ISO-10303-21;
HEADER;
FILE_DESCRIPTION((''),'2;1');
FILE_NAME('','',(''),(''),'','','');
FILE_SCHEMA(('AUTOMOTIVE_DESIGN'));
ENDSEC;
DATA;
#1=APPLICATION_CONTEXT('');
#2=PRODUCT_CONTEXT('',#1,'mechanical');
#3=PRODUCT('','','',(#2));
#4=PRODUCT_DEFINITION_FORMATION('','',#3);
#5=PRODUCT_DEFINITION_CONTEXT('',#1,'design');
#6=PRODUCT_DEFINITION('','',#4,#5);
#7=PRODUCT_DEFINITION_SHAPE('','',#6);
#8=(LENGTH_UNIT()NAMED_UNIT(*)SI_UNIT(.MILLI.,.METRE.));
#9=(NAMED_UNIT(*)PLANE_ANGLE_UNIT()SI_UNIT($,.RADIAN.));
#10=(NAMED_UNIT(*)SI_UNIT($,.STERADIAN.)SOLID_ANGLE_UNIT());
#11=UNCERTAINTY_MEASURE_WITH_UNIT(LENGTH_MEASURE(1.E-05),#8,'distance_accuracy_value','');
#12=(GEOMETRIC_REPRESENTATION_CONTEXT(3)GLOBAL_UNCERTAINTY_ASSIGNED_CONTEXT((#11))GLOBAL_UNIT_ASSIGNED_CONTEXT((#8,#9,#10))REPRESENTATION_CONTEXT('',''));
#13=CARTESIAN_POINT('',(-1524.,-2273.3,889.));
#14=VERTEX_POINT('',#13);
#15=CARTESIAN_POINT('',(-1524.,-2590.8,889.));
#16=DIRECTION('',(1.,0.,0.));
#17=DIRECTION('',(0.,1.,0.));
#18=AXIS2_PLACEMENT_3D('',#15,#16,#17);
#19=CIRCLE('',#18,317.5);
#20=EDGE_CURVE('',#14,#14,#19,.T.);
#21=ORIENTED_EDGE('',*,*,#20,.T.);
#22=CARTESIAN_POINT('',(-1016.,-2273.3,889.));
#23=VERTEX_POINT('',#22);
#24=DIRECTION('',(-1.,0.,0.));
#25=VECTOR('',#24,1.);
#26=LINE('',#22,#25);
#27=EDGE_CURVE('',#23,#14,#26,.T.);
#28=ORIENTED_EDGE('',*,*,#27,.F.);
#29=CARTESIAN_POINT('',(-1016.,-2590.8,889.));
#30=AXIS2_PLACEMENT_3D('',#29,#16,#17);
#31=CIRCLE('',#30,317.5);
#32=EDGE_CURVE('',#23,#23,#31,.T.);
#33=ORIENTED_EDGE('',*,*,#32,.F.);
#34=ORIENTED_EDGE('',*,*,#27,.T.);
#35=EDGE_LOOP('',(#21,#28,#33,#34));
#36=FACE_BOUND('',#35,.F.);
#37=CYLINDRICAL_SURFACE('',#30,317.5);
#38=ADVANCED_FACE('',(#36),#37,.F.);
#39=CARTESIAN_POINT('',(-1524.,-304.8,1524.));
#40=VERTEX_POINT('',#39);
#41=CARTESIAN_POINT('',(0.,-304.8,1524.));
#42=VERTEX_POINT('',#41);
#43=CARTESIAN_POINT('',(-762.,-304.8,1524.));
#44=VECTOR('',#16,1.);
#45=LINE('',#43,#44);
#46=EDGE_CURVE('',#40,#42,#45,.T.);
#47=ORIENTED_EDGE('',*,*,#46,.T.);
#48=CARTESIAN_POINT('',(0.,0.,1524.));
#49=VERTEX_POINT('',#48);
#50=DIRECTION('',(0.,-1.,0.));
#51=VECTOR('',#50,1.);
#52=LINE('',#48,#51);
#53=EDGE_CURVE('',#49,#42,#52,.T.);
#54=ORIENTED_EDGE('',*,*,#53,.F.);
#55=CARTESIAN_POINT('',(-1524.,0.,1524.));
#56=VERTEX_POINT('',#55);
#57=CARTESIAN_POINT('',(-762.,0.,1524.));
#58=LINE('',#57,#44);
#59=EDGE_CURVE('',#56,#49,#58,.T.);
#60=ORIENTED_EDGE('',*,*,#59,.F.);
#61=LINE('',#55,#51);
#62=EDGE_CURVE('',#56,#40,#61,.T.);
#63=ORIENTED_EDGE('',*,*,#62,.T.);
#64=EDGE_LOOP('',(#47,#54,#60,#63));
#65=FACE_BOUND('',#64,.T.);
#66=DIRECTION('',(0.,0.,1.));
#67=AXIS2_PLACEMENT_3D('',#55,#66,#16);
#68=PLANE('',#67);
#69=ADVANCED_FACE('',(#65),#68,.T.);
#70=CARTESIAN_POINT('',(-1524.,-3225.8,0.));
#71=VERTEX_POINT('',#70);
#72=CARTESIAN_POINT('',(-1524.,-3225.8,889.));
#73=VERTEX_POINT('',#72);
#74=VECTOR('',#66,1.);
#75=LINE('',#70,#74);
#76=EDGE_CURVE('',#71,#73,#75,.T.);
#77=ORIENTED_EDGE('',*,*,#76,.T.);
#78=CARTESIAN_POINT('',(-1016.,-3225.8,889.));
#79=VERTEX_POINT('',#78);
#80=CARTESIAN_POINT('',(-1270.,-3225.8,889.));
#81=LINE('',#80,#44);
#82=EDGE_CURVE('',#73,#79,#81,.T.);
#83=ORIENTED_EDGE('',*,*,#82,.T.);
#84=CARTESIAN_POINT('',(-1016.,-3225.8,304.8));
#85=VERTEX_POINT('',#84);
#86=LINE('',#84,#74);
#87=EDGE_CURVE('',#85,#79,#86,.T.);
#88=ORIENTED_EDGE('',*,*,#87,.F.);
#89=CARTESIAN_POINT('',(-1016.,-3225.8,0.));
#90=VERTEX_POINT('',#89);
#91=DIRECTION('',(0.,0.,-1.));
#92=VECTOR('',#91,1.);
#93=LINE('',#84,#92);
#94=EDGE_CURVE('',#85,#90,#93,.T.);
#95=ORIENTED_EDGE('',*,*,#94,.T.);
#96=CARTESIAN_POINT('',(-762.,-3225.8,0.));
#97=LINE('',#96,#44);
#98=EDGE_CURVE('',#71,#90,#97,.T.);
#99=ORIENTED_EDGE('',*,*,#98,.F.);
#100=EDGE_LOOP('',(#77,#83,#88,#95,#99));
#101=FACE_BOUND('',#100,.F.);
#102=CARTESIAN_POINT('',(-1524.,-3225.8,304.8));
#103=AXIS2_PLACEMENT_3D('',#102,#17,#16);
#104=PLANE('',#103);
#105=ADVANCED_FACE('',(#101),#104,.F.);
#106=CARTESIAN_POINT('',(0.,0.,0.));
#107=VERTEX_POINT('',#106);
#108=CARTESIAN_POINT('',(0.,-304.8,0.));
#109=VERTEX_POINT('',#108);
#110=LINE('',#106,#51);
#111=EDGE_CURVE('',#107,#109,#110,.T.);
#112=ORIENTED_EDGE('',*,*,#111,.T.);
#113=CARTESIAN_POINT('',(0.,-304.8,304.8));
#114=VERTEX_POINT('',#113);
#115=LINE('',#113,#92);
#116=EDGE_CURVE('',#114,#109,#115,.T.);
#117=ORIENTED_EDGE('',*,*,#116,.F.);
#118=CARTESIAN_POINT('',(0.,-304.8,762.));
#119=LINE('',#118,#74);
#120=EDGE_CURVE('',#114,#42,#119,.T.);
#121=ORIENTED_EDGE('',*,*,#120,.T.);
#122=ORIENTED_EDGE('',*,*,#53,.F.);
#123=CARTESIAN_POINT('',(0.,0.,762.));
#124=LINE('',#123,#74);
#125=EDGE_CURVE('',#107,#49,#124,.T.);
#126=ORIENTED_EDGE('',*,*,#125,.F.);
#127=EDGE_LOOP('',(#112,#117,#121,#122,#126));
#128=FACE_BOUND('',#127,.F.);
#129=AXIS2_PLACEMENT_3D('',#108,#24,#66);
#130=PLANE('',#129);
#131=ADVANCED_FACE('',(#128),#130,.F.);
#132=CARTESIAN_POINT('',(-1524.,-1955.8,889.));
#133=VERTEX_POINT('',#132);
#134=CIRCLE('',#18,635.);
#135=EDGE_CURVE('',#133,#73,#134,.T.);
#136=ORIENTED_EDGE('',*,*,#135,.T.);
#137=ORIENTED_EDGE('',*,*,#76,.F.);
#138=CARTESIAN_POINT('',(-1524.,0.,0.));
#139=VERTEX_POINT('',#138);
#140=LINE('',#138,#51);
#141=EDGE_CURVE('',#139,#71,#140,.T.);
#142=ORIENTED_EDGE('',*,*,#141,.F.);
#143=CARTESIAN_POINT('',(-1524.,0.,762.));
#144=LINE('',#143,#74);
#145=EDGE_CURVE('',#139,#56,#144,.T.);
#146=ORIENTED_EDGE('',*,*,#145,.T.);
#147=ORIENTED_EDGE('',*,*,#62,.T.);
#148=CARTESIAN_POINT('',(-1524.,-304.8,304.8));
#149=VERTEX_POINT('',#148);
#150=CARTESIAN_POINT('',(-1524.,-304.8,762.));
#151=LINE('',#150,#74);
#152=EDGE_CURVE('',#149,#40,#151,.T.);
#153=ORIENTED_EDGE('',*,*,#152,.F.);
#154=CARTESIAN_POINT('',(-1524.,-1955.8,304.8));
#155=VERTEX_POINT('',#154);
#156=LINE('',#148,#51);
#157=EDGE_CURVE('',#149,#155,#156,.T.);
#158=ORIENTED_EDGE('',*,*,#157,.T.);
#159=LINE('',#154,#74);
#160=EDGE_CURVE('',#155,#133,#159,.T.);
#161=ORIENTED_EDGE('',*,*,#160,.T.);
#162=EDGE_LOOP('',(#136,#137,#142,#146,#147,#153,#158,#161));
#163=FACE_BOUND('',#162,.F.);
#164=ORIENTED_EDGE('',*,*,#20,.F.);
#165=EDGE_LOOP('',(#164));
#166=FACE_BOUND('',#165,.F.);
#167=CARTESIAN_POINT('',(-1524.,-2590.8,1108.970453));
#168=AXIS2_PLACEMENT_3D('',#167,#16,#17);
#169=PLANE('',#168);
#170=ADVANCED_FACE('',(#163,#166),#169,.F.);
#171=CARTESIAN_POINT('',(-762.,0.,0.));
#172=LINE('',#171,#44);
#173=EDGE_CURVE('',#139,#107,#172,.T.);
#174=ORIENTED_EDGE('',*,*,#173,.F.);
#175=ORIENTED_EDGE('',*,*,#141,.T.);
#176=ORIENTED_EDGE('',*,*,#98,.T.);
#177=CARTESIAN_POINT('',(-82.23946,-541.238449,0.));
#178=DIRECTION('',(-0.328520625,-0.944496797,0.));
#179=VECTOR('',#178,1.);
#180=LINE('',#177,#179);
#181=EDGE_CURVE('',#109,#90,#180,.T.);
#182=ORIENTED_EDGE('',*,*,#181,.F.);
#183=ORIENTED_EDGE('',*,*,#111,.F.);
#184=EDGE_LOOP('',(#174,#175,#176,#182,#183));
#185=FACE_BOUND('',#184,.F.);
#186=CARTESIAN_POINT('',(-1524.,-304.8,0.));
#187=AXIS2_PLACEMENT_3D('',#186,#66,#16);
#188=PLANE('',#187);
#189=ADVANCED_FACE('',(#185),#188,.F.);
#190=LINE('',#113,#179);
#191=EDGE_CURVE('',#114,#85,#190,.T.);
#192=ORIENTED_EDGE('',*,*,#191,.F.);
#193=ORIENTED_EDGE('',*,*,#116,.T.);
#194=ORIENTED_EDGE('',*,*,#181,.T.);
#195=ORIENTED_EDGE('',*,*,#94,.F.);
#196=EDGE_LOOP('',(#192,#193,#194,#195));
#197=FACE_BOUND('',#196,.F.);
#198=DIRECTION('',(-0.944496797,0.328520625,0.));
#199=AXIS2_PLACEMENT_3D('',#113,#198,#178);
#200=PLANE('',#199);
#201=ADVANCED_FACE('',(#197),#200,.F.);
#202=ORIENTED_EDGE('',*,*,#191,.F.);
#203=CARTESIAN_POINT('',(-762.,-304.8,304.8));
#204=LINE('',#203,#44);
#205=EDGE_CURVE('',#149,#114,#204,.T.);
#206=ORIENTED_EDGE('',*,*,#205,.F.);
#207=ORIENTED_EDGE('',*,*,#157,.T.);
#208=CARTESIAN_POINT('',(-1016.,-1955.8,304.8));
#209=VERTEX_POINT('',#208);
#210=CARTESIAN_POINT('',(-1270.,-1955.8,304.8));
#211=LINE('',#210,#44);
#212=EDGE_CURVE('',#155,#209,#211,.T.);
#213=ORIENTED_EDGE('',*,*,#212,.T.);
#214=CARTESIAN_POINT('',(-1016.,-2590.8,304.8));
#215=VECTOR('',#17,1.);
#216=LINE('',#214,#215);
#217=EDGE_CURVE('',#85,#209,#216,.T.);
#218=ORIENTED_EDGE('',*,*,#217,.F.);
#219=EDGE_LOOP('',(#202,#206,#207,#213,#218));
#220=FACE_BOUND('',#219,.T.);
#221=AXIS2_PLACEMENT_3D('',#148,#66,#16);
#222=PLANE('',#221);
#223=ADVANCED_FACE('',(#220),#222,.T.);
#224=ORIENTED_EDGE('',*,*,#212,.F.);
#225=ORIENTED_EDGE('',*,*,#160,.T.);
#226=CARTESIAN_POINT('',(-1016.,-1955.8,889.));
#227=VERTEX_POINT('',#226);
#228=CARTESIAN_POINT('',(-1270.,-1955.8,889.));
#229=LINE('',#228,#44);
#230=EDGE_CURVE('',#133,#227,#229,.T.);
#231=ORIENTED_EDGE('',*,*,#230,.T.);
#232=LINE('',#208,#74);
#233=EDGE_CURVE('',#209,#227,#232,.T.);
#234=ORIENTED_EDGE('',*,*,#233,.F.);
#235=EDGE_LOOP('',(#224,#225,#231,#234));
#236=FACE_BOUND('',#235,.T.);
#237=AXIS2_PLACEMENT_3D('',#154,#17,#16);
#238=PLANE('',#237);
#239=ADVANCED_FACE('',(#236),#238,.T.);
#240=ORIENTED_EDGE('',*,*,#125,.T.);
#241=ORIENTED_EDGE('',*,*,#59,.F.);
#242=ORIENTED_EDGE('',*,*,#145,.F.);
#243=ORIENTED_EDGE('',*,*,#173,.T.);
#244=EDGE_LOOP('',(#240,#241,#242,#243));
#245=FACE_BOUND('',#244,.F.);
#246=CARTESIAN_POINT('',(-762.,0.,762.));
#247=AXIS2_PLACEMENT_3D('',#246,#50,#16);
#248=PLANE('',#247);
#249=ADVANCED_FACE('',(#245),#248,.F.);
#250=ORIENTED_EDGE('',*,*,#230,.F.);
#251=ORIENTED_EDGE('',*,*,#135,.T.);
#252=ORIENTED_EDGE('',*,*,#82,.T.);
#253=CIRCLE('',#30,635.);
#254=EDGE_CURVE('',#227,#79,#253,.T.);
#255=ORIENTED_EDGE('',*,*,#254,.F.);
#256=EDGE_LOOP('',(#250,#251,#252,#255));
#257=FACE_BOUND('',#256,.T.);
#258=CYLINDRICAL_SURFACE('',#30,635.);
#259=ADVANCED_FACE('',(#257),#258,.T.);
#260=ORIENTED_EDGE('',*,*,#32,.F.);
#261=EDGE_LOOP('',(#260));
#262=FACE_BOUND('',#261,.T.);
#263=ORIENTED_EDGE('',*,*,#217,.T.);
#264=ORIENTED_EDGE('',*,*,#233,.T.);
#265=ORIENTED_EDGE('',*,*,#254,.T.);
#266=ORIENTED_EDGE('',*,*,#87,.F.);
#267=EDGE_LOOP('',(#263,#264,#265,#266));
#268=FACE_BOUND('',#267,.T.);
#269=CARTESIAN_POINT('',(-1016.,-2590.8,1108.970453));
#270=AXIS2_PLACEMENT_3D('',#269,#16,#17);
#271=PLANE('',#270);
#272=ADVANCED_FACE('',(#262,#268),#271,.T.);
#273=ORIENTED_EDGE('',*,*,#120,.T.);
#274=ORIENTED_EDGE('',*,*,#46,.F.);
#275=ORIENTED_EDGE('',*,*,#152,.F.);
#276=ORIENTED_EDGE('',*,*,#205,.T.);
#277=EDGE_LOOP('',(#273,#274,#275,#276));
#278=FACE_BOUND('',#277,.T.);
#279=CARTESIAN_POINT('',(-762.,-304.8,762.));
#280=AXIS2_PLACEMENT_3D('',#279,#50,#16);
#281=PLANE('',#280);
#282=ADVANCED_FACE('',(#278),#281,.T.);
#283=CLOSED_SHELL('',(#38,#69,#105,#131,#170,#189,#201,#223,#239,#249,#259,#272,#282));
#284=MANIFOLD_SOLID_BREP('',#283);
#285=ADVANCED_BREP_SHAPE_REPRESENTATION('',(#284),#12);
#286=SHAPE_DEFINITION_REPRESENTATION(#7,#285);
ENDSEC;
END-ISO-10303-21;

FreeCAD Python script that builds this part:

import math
import FreeCAD as App
import Part
import Sketcher
Q = App.Units.Quantity


def add_polygon(sketch, points):
    """Adds a closed chain of lines whose ends are joined by coincident constraints."""
    first, n = sketch.GeometryCount, len(points)
    for a, b in zip(points, points[1:] + points[:1]):
        sketch.addGeometry(Part.LineSegment(App.Vector(*a, 0), App.Vector(*b, 0)), False)
    for i in range(n):
        sketch.addConstraint(Sketcher.Constraint("Coincident", first + i, 2, first + (i + 1) % n, 1))

doc = App.newDocument("Part")
body = doc.addObject("PartDesign::Body", "Body")

sketch1 = body.newObject("Sketcher::SketchObject", "Sketch")
sketch1.AttachmentSupport = (doc.getObject("XZ_Plane"), [""])
sketch1.MapMode = "FlatFace"
add_polygon(sketch1, [(-1524, 1524), (-1524, 0), (0, 0), (0, 1524)])
sketch1.addConstraint([
    Sketcher.Constraint("Vertical", 0),
    Sketcher.Constraint("Horizontal", 1),
    Sketcher.Constraint("Vertical", 2),
    Sketcher.Constraint("Horizontal", 3),
    Sketcher.Constraint("Coincident", 1, 2, -1, 1),
    Sketcher.Constraint("Equal", 3, 0),
    Sketcher.Constraint("DistanceX", 1, 1, 1, 2, Q("60 in")),
])
pad1 = body.newObject("PartDesign::Pad", "Pad")
pad1.Profile = sketch1
pad1.Length = Q("12 in")

sketch2 = body.newObject("Sketcher::SketchObject", "Sketch001")
sketch2.AttachmentSupport = (doc.getObject("XZ_Plane"), [""])
sketch2.MapMode = "FlatFace"
sketch2.AttachmentOffset = App.Placement(App.Vector(0, 0, 12 * 25.4), App.Rotation())
add_polygon(sketch2, [(-1524, 305), (-1524, 0), (0, 0), (0, 305)])
sketch2.addConstraint([
    Sketcher.Constraint("Vertical", 0),
    Sketcher.Constraint("Horizontal", 1),
    Sketcher.Constraint("Vertical", 2),
    Sketcher.Constraint("Horizontal", 3),
    Sketcher.Constraint("Coincident", 1, 2, -1, 1),
    Sketcher.Constraint("DistanceX", 1, 1, 1, 2, Q("60 in")),
    Sketcher.Constraint("DistanceY", 0, 2, 0, 1, Q("12 in")),
])
pad2 = body.newObject("PartDesign::Pad", "Pad001")
pad2.Profile = sketch2
pad2.Length = Q("115 in")

sketch3 = body.newObject("Sketcher::SketchObject", "Sketch002")
sketch3.AttachmentSupport = (doc.getObject("XY_Plane"), [""])
sketch3.MapMode = "FlatFace"
sketch3.AttachmentOffset = App.Placement(App.Vector(0, 0, 12 * 25.4), App.Rotation())
add_polygon(sketch3, [(-1524, -1956), (-1524, -3226), (-1016, -3226), (-1016, -1956)])
sketch3.addConstraint([
    Sketcher.Constraint("Vertical", 0),
    Sketcher.Constraint("Horizontal", 1),
    Sketcher.Constraint("Vertical", 2),
    Sketcher.Constraint("Horizontal", 3),
    Sketcher.Constraint("DistanceX", 1, 1, 1, 2, Q("20 in")),
    Sketcher.Constraint("DistanceY", 0, 2, 0, 1, Q("50 in")),
    Sketcher.Constraint("DistanceX", 0, 2, -1, 1, Q("60 in")),
    Sketcher.Constraint("DistanceY", 0, 2, -1, 1, Q("127 in")),
])
pad3 = body.newObject("PartDesign::Pad", "Pad002")
pad3.Profile = sketch3
pad3.Length = Q("23 in")

sketch4 = body.newObject("Sketcher::SketchObject", "Sketch003")
sketch4.AttachmentSupport = (doc.getObject("YZ_Plane"), [""])
sketch4.MapMode = "FlatFace"
sketch4.AttachmentOffset = App.Placement(App.Vector(0, 0, -40 * 25.4), App.Rotation())
sketch4.addGeometry([
    Part.LineSegment(App.Vector(-3226, 889, 0), App.Vector(-1956, 889, 0)),
    Part.ArcOfCircle(Part.Circle(App.Vector(-2591, 889, 0), App.Vector(0, 0, 1), 635), math.radians(0), math.radians(180)),
], False)
sketch4.addConstraint([
    Sketcher.Constraint("Coincident", 0, 1, 1, 2),
    Sketcher.Constraint("Coincident", 1, 1, 0, 2),
    Sketcher.Constraint("Horizontal", 0),
    Sketcher.Constraint("Horizontal", 1, 3, 0, 1),
    Sketcher.Constraint("Radius", 1, Q("25 in")),
    Sketcher.Constraint("DistanceX", 1, 3, -1, 1, Q("102 in")),
    Sketcher.Constraint("DistanceY", -1, 1, 1, 3, Q("35 in")),
])
pad4 = body.newObject("PartDesign::Pad", "Pad003")
pad4.Profile = sketch4
pad4.Length = Q("20 in")
pad4.Reversed = True

sketch5 = body.newObject("Sketcher::SketchObject", "Sketch004")
sketch5.AttachmentSupport = (doc.getObject("YZ_Plane"), [""])
sketch5.MapMode = "FlatFace"
sketch5.AttachmentOffset = App.Placement(App.Vector(0, 0, -40 * 25.4), App.Rotation())
sketch5.addGeometry(Part.Circle(App.Vector(-2591, 889, 0), App.Vector(0, 0, 1), 318), False)
sketch5.addConstraint([
    Sketcher.Constraint("Diameter", 0, Q("25 in")),
    Sketcher.Constraint("DistanceX", 0, 3, -1, 1, Q("102 in")),
    Sketcher.Constraint("DistanceY", -1, 1, 0, 3, Q("35 in")),
])
pocket1 = body.newObject("PartDesign::Pocket", "Pocket")
pocket1.Profile = sketch5
pocket1.Length = Q("97.5 in")

sketch6 = body.newObject("Sketcher::SketchObject", "Sketch005")
sketch6.AttachmentSupport = (doc.getObject("XY_Plane"), [""])
sketch6.MapMode = "FlatFace"
sketch6.AttachmentOffset = App.Placement(App.Vector(0, 0, 12 * 25.4), App.Rotation())
add_polygon(sketch6, [(0, -305), (-1016, -3226), (0, -3226)])
sketch6.addConstraint([
    Sketcher.Constraint("Horizontal", 1),
    Sketcher.Constraint("Vertical", 2),
    Sketcher.Constraint("PointOnObject", 1, 2, -2),
    Sketcher.Constraint("DistanceX", 1, 1, 1, 2, Q("40 in")),
    Sketcher.Constraint("DistanceY", 2, 1, 2, 2, Q("115 in")),
    Sketcher.Constraint("DistanceY", 0, 2, -1, 1, Q("127 in")),
])
pocket2 = body.newObject("PartDesign::Pocket", "Pocket001")
pocket2.Profile = sketch6
pocket2.Length = Q("90.1 in")
body2 = doc.addObject("PartDesign::Body", "Body001")

sketch7 = body2.newObject("Sketcher::SketchObject", "Sketch006")
sketch7.AttachmentSupport = (doc.getObject("XZ_Plane001"), [""])
sketch7.MapMode = "FlatFace"
add_polygon(sketch7, [(-415, -346), (-415, -352), (-374, -352), (-374, -346)])
sketch7.addConstraint([
    Sketcher.Constraint("Vertical", 0),
    Sketcher.Constraint("Horizontal", 1),
    Sketcher.Constraint("Vertical", 2),
    Sketcher.Constraint("Horizontal", 3),
    Sketcher.Constraint("DistanceX", 1, 1, 1, 2, Q("40.871918 mm")),
    Sketcher.Constraint("DistanceY", 0, 2, -1, 1, Q("351.957798 mm")),
    Sketcher.Constraint("DistanceY", 0, 2, 0, 1, Q("6.111145 mm")),
    Sketcher.Constraint("DistanceX", 1, 2, -1, 1, Q("374.389708 mm")),
])
pad5 = body2.newObject("PartDesign::Pad", "Pad004")
pad5.Profile = sketch7
pad5.Length = Q("12 in")
body2.Visibility = False

doc.recompute()
